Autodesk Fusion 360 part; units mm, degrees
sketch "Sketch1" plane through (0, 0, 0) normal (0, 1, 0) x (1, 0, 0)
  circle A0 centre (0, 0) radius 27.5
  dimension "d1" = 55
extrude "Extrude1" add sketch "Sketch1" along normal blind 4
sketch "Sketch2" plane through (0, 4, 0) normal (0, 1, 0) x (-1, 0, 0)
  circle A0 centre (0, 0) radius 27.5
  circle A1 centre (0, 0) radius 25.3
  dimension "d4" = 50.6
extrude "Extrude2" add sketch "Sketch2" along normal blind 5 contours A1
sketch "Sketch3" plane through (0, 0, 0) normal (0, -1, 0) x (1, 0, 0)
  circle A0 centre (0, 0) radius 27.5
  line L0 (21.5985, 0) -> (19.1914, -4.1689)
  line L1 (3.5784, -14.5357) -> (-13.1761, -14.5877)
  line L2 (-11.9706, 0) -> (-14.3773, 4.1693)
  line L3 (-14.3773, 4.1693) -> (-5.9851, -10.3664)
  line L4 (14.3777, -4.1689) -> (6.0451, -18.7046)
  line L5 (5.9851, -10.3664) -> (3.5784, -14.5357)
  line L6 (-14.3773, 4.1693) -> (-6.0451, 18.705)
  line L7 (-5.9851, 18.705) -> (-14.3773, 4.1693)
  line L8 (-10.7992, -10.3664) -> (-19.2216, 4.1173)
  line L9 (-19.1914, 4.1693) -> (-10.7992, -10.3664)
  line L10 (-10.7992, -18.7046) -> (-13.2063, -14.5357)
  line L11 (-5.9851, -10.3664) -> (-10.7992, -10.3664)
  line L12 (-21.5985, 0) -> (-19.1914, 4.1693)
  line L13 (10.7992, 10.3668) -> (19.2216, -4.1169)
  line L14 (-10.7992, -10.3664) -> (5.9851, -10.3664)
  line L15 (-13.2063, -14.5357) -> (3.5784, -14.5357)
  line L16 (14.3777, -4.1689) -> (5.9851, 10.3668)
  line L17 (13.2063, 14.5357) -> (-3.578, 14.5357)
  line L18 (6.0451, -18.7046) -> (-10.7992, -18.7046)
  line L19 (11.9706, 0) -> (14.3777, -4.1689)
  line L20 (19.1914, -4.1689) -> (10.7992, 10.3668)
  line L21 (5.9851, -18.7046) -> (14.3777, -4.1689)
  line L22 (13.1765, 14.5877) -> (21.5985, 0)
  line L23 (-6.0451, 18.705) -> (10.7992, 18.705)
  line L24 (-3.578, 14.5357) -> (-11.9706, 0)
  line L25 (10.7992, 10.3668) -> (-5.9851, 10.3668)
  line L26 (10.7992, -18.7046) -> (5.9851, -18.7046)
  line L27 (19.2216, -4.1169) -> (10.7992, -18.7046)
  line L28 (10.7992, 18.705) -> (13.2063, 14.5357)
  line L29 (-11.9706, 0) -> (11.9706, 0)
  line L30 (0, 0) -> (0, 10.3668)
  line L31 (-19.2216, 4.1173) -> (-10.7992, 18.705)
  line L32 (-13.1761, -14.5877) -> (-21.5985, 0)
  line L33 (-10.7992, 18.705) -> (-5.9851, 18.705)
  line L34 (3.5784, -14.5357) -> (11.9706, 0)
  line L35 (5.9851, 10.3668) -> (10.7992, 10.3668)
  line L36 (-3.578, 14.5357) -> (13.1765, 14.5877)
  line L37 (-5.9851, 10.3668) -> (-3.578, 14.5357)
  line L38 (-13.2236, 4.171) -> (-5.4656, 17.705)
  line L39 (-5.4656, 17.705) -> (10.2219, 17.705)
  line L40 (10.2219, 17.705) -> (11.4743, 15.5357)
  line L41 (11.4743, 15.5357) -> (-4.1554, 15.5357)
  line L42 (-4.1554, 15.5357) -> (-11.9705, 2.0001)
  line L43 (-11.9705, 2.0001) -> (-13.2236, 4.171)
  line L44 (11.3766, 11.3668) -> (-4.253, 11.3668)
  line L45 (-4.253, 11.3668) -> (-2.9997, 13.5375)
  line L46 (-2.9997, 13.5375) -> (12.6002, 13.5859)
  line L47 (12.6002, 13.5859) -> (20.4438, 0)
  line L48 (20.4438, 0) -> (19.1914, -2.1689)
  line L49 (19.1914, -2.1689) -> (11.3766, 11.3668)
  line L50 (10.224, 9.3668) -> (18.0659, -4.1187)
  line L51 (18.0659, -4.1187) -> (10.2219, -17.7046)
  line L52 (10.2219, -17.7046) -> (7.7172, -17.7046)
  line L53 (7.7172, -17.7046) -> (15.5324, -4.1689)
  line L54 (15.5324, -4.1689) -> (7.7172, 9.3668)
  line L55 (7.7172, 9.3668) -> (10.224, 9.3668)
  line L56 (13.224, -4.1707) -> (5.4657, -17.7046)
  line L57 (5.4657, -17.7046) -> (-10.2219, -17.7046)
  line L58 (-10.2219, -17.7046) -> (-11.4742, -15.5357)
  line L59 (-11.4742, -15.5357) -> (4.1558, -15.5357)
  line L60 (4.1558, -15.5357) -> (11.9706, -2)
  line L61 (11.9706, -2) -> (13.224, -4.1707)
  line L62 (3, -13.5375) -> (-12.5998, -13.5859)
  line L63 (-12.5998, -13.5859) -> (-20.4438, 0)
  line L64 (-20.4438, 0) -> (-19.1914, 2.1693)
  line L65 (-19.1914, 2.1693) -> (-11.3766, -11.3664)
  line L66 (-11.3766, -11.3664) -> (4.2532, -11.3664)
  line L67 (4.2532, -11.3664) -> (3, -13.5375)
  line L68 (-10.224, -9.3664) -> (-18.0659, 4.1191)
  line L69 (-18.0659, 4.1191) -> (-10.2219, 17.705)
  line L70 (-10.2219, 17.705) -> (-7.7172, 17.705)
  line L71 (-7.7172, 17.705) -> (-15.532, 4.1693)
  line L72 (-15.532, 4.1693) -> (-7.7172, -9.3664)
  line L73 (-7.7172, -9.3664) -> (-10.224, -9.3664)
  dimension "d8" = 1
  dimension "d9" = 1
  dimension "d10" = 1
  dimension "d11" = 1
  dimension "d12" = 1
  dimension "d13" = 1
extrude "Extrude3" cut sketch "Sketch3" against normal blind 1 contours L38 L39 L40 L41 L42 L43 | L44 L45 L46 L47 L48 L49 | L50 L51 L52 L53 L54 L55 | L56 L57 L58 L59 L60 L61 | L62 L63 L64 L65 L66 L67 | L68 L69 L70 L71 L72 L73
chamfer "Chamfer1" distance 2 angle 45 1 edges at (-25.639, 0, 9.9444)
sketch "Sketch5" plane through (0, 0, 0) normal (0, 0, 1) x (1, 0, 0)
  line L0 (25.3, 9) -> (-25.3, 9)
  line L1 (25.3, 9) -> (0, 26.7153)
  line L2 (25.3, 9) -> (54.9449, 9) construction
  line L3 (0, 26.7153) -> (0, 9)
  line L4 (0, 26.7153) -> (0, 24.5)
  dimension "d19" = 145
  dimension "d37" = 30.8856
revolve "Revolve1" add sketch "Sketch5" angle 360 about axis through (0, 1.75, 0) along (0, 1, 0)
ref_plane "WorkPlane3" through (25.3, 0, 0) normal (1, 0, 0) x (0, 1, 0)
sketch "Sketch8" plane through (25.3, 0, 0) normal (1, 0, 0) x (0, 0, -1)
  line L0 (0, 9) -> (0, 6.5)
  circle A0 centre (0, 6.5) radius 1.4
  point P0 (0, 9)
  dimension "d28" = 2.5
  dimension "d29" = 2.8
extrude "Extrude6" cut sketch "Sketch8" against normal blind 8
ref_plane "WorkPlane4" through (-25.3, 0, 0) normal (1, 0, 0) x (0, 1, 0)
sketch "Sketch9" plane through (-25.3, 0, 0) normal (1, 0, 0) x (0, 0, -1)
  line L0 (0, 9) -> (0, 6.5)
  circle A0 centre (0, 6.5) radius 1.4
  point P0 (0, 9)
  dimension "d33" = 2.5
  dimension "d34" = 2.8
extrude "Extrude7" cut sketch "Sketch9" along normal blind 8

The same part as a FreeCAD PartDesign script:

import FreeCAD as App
import Part
import Sketcher
Q = App.Units.Quantity


def edges_at(feature, points):
    """Names of the edges that pass closest to the given points."""
    edges = feature.Shape.Edges
    near = lambda p: min(range(len(edges)), key=lambda i: edges[i].distToShape(Part.Vertex(*p))[0])
    return sorted({f"Edge{near(p) + 1}" for p in points})

doc = App.newDocument("Part")
body = doc.addObject("PartDesign::Body", "Body")

sketch1 = body.newObject("Sketcher::SketchObject", "Sketch")
sketch1.AttachmentSupport = (doc.getObject("XZ_Plane"), [""])
sketch1.MapMode = "FlatFace"
sketch1.addGeometry(Part.Circle(App.Vector(0, 0, 0), App.Vector(0, 0, 1), 27.5), False)
sketch1.addConstraint([
    Sketcher.Constraint("Coincident", 0, 3, -1, 1),
    Sketcher.Constraint("Diameter", 0, Q("55 mm")),
])
pad1 = body.newObject("PartDesign::Pad", "Pad")
pad1.Profile = sketch1
pad1.Length = 4
pad1.Reversed = True

sketch2 = body.newObject("Sketcher::SketchObject", "Sketch001")
sketch2.AttachmentSupport = (doc.getObject("XZ_Plane"), [""])
sketch2.MapMode = "FlatFace"
sketch2.AttachmentOffset = App.Placement(App.Vector(0, 0, -4), App.Rotation())
sketch2.addGeometry(Part.Circle(App.Vector(0, 0, 0), App.Vector(0, 0, 1), 25.3), False)
sketch2.addConstraint([
    Sketcher.Constraint("Coincident", 0, 3, -1, 1),
    Sketcher.Constraint("Diameter", 0, Q("50.6 mm")),
])
pad2 = body.newObject("PartDesign::Pad", "Pad001")
pad2.Profile = sketch2
pad2.Length = 5
pad2.Reversed = True

sketch3 = body.newObject("Sketcher::SketchObject", "Sketch002")
sketch3.AttachmentSupport = (doc.getObject("XZ_Plane"), [""])
sketch3.MapMode = "FlatFace"
sketch3.addGeometry([
    Part.LineSegment(App.Vector(-5.4656, 17.705, 0), App.Vector(-13.2236, 4.171, 0)),
    Part.LineSegment(App.Vector(-13.2236, 4.171, 0), App.Vector(-11.9705, 2.0001, 0)),
    Part.LineSegment(App.Vector(-11.9705, 2.0001, 0), App.Vector(-4.1554, 15.5357, 0)),
    Part.LineSegment(App.Vector(-4.1554, 15.5357, 0), App.Vector(11.4743, 15.5357, 0)),
    Part.LineSegment(App.Vector(11.4743, 15.5357, 0), App.Vector(10.2219, 17.705, 0)),
    Part.LineSegment(App.Vector(10.2219, 17.705, 0), App.Vector(-5.4656, 17.705, 0)),
    Part.LineSegment(App.Vector(-4.253, 11.3668, 0), App.Vector(11.3766, 11.3668, 0)),
    Part.LineSegment(App.Vector(11.3766, 11.3668, 0), App.Vector(19.1914, -2.1689, 0)),
    Part.LineSegment(App.Vector(19.1914, -2.1689, 0), App.Vector(20.4438, 0, 0)),
    Part.LineSegment(App.Vector(20.4438, 0, 0), App.Vector(12.6002, 13.5859, 0)),
    Part.LineSegment(App.Vector(12.6002, 13.5859, 0), App.Vector(-2.9997, 13.5375, 0)),
    Part.LineSegment(App.Vector(-2.9997, 13.5375, 0), App.Vector(-4.253, 11.3668, 0)),
    Part.LineSegment(App.Vector(18.0659, -4.1187, 0), App.Vector(10.224, 9.3668, 0)),
    Part.LineSegment(App.Vector(10.224, 9.3668, 0), App.Vector(7.7172, 9.3668, 0)),
    Part.LineSegment(App.Vector(7.7172, 9.3668, 0), App.Vector(15.5324, -4.1689, 0)),
    Part.LineSegment(App.Vector(15.5324, -4.1689, 0), App.Vector(7.7172, -17.7046, 0)),
    Part.LineSegment(App.Vector(7.7172, -17.7046, 0), App.Vector(10.2219, -17.7046, 0)),
    Part.LineSegment(App.Vector(10.2219, -17.7046, 0), App.Vector(18.0659, -4.1187, 0)),
    Part.LineSegment(App.Vector(5.4657, -17.7046, 0), App.Vector(13.224, -4.1707, 0)),
    Part.LineSegment(App.Vector(13.224, -4.1707, 0), App.Vector(11.9706, -2, 0)),
    Part.LineSegment(App.Vector(11.9706, -2, 0), App.Vector(4.1558, -15.5357, 0)),
    Part.LineSegment(App.Vector(4.1558, -15.5357, 0), App.Vector(-11.4742, -15.5357, 0)),
    Part.LineSegment(App.Vector(-11.4742, -15.5357, 0), App.Vector(-10.2219, -17.7046, 0)),
    Part.LineSegment(App.Vector(-10.2219, -17.7046, 0), App.Vector(5.4657, -17.7046, 0)),
    Part.LineSegment(App.Vector(-12.5998, -13.5859, 0), App.Vector(3, -13.5375, 0)),
    Part.LineSegment(App.Vector(3, -13.5375, 0), App.Vector(4.2532, -11.3664, 0)),
    Part.LineSegment(App.Vector(4.2532, -11.3664, 0), App.Vector(-11.3766, -11.3664, 0)),
    Part.LineSegment(App.Vector(-11.3766, -11.3664, 0), App.Vector(-19.1914, 2.1693, 0)),
    Part.LineSegment(App.Vector(-19.1914, 2.1693, 0), App.Vector(-20.4438, 0, 0)),
    Part.LineSegment(App.Vector(-20.4438, 0, 0), App.Vector(-12.5998, -13.5859, 0)),
    Part.LineSegment(App.Vector(-18.0659, 4.1191, 0), App.Vector(-10.224, -9.3664, 0)),
    Part.LineSegment(App.Vector(-10.224, -9.3664, 0), App.Vector(-7.7172, -9.3664, 0)),
    Part.LineSegment(App.Vector(-7.7172, -9.3664, 0), App.Vector(-15.532, 4.1693, 0)),
    Part.LineSegment(App.Vector(-15.532, 4.1693, 0), App.Vector(-7.7172, 17.705, 0)),
    Part.LineSegment(App.Vector(-7.7172, 17.705, 0), App.Vector(-10.2219, 17.705, 0)),
    Part.LineSegment(App.Vector(-10.2219, 17.705, 0), App.Vector(-18.0659, 4.1191, 0)),
], False)
sketch3.addConstraint([
    Sketcher.Constraint("Coincident", 0, 2, 1, 1),
    Sketcher.Constraint("Coincident", 1, 2, 2, 1),
    Sketcher.Constraint("Coincident", 2, 2, 3, 1),
    Sketcher.Constraint("Coincident", 3, 2, 4, 1),
    Sketcher.Constraint("Coincident", 4, 2, 5, 1),
    Sketcher.Constraint("Coincident", 5, 2, 0, 1),
    Sketcher.Constraint("Coincident", 6, 2, 7, 1),
    Sketcher.Constraint("Coincident", 7, 2, 8, 1),
    Sketcher.Constraint("Coincident", 8, 2, 9, 1),
    Sketcher.Constraint("Coincident", 9, 2, 10, 1),
    Sketcher.Constraint("Coincident", 10, 2, 11, 1),
    Sketcher.Constraint("Coincident", 11, 2, 6, 1),
    Sketcher.Constraint("Coincident", 12, 2, 13, 1),
    Sketcher.Constraint("Coincident", 13, 2, 14, 1),
    Sketcher.Constraint("Coincident", 14, 2, 15, 1),
    Sketcher.Constraint("Coincident", 15, 2, 16, 1),
    Sketcher.Constraint("Coincident", 16, 2, 17, 1),
    Sketcher.Constraint("Coincident", 17, 2, 12, 1),
    Sketcher.Constraint("Coincident", 18, 2, 19, 1),
    Sketcher.Constraint("Coincident", 19, 2, 20, 1),
    Sketcher.Constraint("Coincident", 20, 2, 21, 1),
    Sketcher.Constraint("Coincident", 21, 2, 22, 1),
    Sketcher.Constraint("Coincident", 22, 2, 23, 1),
    Sketcher.Constraint("Coincident", 23, 2, 18, 1),
    Sketcher.Constraint("Coincident", 24, 2, 25, 1),
    Sketcher.Constraint("Coincident", 25, 2, 26, 1),
    Sketcher.Constraint("Coincident", 26, 2, 27, 1),
    Sketcher.Constraint("Coincident", 27, 2, 28, 1),
    Sketcher.Constraint("Coincident", 28, 2, 29, 1),
    Sketcher.Constraint("Coincident", 29, 2, 24, 1),
    Sketcher.Constraint("Coincident", 30, 2, 31, 1),
    Sketcher.Constraint("Coincident", 31, 2, 32, 1),
    Sketcher.Constraint("Coincident", 32, 2, 33, 1),
    Sketcher.Constraint("Coincident", 33, 2, 34, 1),
    Sketcher.Constraint("Coincident", 34, 2, 35, 1),
    Sketcher.Constraint("Coincident", 35, 2, 30, 1),
    Sketcher.Constraint("Horizontal", 3),
    Sketcher.Constraint("Horizontal", 5),
    Sketcher.Constraint("Horizontal", 6),
    Sketcher.Constraint("Horizontal", 13),
    Sketcher.Constraint("Horizontal", 16),
    Sketcher.Constraint("Horizontal", 21),
    Sketcher.Constraint("Horizontal", 23),
    Sketcher.Constraint("Horizontal", 26),
    Sketcher.Constraint("Horizontal", 31),
    Sketcher.Constraint("Horizontal", 34),
    Sketcher.Constraint("Symmetric", 1, 2, 19, 2, -1, 1),
    Sketcher.Constraint("Symmetric", 2, 2, 20, 2, -1, 1),
    Sketcher.Constraint("Symmetric", 4, 2, 22, 2, -1, 1),
    Sketcher.Constraint("Symmetric", 10, 2, 24, 2, -1, 1),
    Sketcher.Constraint("Symmetric", 6, 2, 26, 2, -1, 1),
    Sketcher.Constraint("Symmetric", 7, 2, 27, 2, -1, 1),
    Sketcher.Constraint("Symmetric", 8, 2, 28, 2, -1, 1),
    Sketcher.Constraint("Symmetric", 9, 2, 29, 2, -1, 1),
    Sketcher.Constraint("Symmetric", 12, 2, 30, 2, -1, 1),
    Sketcher.Constraint("Symmetric", 15, 2, 33, 2, -1, 1),
    Sketcher.Constraint("Symmetric", 16, 2, 22, 2, -2),
    Sketcher.Constraint("PointOnObject", 8, 2, -1),
    Sketcher.Constraint("Parallel", 1, 4),
    Sketcher.Constraint("Parallel", 4, 7),
    Sketcher.Constraint("Parallel", 2, 8),
    Sketcher.Constraint("Parallel", 7, 9),
    Sketcher.Constraint("Parallel", 8, 11),
    Sketcher.Constraint("Parallel", 9, 14),
    Sketcher.Constraint("Parallel", 11, 15),
    Sketcher.Constraint("Parallel", 15, 17),
    Sketcher.Constraint("Parallel", 0, 18),
    Sketcher.Constraint("Parallel", 14, 19),
    Sketcher.Constraint("Parallel", 19, 22),
    Sketcher.Constraint("Parallel", 20, 25),
    Sketcher.Constraint("Parallel", 12, 30),
    Sketcher.Constraint("Parallel", 29, 32),
    Sketcher.Constraint("Parallel", 28, 33),
    Sketcher.Constraint("Parallel", 33, 35),
    Sketcher.Constraint("Vertical", 13, 2, 15, 2),
    Sketcher.Constraint("Vertical", 31, 2, 33, 2),
    Sketcher.Constraint("Vertical", 22, 2, 34, 2),
    Sketcher.Constraint("Equal", 3, 6),
    Sketcher.Constraint("Equal", 5, 23),
    Sketcher.Constraint("Equal", 2, 7),
    Sketcher.Constraint("Equal", 0, 10),
    Sketcher.Constraint("Equal", 1, 11),
    Sketcher.Constraint("Equal", 10, 12),
    Sketcher.Constraint("Equal", 2, 14),
    Sketcher.Constraint("Equal", 14, 15),
    Sketcher.Constraint("Equal", 9, 17),
    Sketcher.Constraint("Equal", 8, 22),
    Sketcher.Constraint("Angle", 2, Q("59.999 deg")),
    Sketcher.Constraint("DistanceY", -1, 1, 1, 2, Q("2 mm")),
    Sketcher.Constraint("DistanceX", -1, 1, 24, 2, Q("3 mm")),
    Sketcher.Constraint("Distance", 10, Q("15.6 mm")),
    Sketcher.Constraint("DistanceX", 21, 2, 21, 1, Q("15.63 mm")),
    Sketcher.Constraint("DistanceX", 5, 2, 3, 2, Q("16.94 mm")),
    Sketcher.Constraint("DistanceX", 5, 2, 5, 1, Q("15.6875 mm")),
    Sketcher.Constraint("DistanceX", 13, 2, 13, 1, Q("2.5068 mm")),
    Sketcher.Constraint("DistanceX", 16, 1, 16, 2, Q("2.5047 mm")),
    Sketcher.Constraint("DistanceX", -1, 1, 4, 2, Q("10.222 mm")),
])
pocket1 = body.newObject("PartDesign::Pocket", "Pocket")
pocket1.Profile = sketch3
pocket1.Length = 1
doc.recompute()

chamfer = body.newObject("PartDesign::Chamfer", "Chamfer")
chamfer.Base = (pocket1, edges_at(pocket1, [(-25.639, 0, 9.944)]))
chamfer.Size = 2

sketch4 = body.newObject("Sketcher::SketchObject", "Sketch003")
sketch4.AttachmentSupport = (doc.getObject("XY_Plane"), [""])
sketch4.MapMode = "FlatFace"
sketch4.addGeometry([
    Part.LineSegment(App.Vector(0, 9, 0), App.Vector(25.3, 9, 0)),
    Part.LineSegment(App.Vector(25.3, 9, 0), App.Vector(0, 26.7153, 0)),
    Part.LineSegment(App.Vector(0, 26.7153, 0), App.Vector(0, 9, 0)),
], False)
sketch4.addConstraint([
    Sketcher.Constraint("Coincident", 0, 2, 1, 1),
    Sketcher.Constraint("Coincident", 1, 2, 2, 1),
    Sketcher.Constraint("Coincident", 2, 2, 0, 1),
    Sketcher.Constraint("Horizontal", 0),
    Sketcher.Constraint("Vertical", 2),
    Sketcher.Constraint("PointOnObject", 1, 2, -2),
    Sketcher.Constraint("Angle", 1, Q("145 deg")),
    Sketcher.Constraint("DistanceX", 0, 1, 0, 2, Q("25.3 mm")),
    Sketcher.Constraint("DistanceY", -1, 1, 0, 2, Q("9 mm")),
])
revolution = body.newObject("PartDesign::Revolution", "Revolution")
revolution.Profile = sketch4
revolution.ReferenceAxis = (sketch4, ["V_Axis"])
revolution.Angle = 360

sketch5 = body.newObject("Sketcher::SketchObject", "Sketch004")
sketch5.AttachmentSupport = (doc.getObject("YZ_Plane"), [""])
sketch5.MapMode = "FlatFace"
sketch5.AttachmentOffset = App.Placement(App.Vector(0, 0, 25.3), App.Rotation())
sketch5.addGeometry(Part.Circle(App.Vector(6.5, 0, 0), App.Vector(0, 0, 1), 1.4), False)
sketch5.addConstraint([
    Sketcher.Constraint("PointOnObject", 0, 3, -1),
    Sketcher.Constraint("Diameter", 0, Q("2.8 mm")),
    Sketcher.Constraint("DistanceX", -1, 1, 0, 3, Q("6.5 mm")),
])
pocket2 = body.newObject("PartDesign::Pocket", "Pocket001")
pocket2.Profile = sketch5
pocket2.Length = 8

sketch6 = body.newObject("Sketcher::SketchObject", "Sketch005")
sketch6.AttachmentSupport = (doc.getObject("YZ_Plane"), [""])
sketch6.MapMode = "FlatFace"
sketch6.AttachmentOffset = App.Placement(App.Vector(0, 0, -25.3), App.Rotation())
sketch6.addGeometry(Part.Circle(App.Vector(6.5, 0, 0), App.Vector(0, 0, 1), 1.4), False)
sketch6.addConstraint([
    Sketcher.Constraint("PointOnObject", 0, 3, -1),
    Sketcher.Constraint("Diameter", 0, Q("2.8 mm")),
    Sketcher.Constraint("DistanceX", -1, 1, 0, 3, Q("6.5 mm")),
])
pocket3 = body.newObject("PartDesign::Pocket", "Pocket002")
pocket3.Profile = sketch6
pocket3.Length = 8
pocket3.Reversed = True

doc.recompute()
